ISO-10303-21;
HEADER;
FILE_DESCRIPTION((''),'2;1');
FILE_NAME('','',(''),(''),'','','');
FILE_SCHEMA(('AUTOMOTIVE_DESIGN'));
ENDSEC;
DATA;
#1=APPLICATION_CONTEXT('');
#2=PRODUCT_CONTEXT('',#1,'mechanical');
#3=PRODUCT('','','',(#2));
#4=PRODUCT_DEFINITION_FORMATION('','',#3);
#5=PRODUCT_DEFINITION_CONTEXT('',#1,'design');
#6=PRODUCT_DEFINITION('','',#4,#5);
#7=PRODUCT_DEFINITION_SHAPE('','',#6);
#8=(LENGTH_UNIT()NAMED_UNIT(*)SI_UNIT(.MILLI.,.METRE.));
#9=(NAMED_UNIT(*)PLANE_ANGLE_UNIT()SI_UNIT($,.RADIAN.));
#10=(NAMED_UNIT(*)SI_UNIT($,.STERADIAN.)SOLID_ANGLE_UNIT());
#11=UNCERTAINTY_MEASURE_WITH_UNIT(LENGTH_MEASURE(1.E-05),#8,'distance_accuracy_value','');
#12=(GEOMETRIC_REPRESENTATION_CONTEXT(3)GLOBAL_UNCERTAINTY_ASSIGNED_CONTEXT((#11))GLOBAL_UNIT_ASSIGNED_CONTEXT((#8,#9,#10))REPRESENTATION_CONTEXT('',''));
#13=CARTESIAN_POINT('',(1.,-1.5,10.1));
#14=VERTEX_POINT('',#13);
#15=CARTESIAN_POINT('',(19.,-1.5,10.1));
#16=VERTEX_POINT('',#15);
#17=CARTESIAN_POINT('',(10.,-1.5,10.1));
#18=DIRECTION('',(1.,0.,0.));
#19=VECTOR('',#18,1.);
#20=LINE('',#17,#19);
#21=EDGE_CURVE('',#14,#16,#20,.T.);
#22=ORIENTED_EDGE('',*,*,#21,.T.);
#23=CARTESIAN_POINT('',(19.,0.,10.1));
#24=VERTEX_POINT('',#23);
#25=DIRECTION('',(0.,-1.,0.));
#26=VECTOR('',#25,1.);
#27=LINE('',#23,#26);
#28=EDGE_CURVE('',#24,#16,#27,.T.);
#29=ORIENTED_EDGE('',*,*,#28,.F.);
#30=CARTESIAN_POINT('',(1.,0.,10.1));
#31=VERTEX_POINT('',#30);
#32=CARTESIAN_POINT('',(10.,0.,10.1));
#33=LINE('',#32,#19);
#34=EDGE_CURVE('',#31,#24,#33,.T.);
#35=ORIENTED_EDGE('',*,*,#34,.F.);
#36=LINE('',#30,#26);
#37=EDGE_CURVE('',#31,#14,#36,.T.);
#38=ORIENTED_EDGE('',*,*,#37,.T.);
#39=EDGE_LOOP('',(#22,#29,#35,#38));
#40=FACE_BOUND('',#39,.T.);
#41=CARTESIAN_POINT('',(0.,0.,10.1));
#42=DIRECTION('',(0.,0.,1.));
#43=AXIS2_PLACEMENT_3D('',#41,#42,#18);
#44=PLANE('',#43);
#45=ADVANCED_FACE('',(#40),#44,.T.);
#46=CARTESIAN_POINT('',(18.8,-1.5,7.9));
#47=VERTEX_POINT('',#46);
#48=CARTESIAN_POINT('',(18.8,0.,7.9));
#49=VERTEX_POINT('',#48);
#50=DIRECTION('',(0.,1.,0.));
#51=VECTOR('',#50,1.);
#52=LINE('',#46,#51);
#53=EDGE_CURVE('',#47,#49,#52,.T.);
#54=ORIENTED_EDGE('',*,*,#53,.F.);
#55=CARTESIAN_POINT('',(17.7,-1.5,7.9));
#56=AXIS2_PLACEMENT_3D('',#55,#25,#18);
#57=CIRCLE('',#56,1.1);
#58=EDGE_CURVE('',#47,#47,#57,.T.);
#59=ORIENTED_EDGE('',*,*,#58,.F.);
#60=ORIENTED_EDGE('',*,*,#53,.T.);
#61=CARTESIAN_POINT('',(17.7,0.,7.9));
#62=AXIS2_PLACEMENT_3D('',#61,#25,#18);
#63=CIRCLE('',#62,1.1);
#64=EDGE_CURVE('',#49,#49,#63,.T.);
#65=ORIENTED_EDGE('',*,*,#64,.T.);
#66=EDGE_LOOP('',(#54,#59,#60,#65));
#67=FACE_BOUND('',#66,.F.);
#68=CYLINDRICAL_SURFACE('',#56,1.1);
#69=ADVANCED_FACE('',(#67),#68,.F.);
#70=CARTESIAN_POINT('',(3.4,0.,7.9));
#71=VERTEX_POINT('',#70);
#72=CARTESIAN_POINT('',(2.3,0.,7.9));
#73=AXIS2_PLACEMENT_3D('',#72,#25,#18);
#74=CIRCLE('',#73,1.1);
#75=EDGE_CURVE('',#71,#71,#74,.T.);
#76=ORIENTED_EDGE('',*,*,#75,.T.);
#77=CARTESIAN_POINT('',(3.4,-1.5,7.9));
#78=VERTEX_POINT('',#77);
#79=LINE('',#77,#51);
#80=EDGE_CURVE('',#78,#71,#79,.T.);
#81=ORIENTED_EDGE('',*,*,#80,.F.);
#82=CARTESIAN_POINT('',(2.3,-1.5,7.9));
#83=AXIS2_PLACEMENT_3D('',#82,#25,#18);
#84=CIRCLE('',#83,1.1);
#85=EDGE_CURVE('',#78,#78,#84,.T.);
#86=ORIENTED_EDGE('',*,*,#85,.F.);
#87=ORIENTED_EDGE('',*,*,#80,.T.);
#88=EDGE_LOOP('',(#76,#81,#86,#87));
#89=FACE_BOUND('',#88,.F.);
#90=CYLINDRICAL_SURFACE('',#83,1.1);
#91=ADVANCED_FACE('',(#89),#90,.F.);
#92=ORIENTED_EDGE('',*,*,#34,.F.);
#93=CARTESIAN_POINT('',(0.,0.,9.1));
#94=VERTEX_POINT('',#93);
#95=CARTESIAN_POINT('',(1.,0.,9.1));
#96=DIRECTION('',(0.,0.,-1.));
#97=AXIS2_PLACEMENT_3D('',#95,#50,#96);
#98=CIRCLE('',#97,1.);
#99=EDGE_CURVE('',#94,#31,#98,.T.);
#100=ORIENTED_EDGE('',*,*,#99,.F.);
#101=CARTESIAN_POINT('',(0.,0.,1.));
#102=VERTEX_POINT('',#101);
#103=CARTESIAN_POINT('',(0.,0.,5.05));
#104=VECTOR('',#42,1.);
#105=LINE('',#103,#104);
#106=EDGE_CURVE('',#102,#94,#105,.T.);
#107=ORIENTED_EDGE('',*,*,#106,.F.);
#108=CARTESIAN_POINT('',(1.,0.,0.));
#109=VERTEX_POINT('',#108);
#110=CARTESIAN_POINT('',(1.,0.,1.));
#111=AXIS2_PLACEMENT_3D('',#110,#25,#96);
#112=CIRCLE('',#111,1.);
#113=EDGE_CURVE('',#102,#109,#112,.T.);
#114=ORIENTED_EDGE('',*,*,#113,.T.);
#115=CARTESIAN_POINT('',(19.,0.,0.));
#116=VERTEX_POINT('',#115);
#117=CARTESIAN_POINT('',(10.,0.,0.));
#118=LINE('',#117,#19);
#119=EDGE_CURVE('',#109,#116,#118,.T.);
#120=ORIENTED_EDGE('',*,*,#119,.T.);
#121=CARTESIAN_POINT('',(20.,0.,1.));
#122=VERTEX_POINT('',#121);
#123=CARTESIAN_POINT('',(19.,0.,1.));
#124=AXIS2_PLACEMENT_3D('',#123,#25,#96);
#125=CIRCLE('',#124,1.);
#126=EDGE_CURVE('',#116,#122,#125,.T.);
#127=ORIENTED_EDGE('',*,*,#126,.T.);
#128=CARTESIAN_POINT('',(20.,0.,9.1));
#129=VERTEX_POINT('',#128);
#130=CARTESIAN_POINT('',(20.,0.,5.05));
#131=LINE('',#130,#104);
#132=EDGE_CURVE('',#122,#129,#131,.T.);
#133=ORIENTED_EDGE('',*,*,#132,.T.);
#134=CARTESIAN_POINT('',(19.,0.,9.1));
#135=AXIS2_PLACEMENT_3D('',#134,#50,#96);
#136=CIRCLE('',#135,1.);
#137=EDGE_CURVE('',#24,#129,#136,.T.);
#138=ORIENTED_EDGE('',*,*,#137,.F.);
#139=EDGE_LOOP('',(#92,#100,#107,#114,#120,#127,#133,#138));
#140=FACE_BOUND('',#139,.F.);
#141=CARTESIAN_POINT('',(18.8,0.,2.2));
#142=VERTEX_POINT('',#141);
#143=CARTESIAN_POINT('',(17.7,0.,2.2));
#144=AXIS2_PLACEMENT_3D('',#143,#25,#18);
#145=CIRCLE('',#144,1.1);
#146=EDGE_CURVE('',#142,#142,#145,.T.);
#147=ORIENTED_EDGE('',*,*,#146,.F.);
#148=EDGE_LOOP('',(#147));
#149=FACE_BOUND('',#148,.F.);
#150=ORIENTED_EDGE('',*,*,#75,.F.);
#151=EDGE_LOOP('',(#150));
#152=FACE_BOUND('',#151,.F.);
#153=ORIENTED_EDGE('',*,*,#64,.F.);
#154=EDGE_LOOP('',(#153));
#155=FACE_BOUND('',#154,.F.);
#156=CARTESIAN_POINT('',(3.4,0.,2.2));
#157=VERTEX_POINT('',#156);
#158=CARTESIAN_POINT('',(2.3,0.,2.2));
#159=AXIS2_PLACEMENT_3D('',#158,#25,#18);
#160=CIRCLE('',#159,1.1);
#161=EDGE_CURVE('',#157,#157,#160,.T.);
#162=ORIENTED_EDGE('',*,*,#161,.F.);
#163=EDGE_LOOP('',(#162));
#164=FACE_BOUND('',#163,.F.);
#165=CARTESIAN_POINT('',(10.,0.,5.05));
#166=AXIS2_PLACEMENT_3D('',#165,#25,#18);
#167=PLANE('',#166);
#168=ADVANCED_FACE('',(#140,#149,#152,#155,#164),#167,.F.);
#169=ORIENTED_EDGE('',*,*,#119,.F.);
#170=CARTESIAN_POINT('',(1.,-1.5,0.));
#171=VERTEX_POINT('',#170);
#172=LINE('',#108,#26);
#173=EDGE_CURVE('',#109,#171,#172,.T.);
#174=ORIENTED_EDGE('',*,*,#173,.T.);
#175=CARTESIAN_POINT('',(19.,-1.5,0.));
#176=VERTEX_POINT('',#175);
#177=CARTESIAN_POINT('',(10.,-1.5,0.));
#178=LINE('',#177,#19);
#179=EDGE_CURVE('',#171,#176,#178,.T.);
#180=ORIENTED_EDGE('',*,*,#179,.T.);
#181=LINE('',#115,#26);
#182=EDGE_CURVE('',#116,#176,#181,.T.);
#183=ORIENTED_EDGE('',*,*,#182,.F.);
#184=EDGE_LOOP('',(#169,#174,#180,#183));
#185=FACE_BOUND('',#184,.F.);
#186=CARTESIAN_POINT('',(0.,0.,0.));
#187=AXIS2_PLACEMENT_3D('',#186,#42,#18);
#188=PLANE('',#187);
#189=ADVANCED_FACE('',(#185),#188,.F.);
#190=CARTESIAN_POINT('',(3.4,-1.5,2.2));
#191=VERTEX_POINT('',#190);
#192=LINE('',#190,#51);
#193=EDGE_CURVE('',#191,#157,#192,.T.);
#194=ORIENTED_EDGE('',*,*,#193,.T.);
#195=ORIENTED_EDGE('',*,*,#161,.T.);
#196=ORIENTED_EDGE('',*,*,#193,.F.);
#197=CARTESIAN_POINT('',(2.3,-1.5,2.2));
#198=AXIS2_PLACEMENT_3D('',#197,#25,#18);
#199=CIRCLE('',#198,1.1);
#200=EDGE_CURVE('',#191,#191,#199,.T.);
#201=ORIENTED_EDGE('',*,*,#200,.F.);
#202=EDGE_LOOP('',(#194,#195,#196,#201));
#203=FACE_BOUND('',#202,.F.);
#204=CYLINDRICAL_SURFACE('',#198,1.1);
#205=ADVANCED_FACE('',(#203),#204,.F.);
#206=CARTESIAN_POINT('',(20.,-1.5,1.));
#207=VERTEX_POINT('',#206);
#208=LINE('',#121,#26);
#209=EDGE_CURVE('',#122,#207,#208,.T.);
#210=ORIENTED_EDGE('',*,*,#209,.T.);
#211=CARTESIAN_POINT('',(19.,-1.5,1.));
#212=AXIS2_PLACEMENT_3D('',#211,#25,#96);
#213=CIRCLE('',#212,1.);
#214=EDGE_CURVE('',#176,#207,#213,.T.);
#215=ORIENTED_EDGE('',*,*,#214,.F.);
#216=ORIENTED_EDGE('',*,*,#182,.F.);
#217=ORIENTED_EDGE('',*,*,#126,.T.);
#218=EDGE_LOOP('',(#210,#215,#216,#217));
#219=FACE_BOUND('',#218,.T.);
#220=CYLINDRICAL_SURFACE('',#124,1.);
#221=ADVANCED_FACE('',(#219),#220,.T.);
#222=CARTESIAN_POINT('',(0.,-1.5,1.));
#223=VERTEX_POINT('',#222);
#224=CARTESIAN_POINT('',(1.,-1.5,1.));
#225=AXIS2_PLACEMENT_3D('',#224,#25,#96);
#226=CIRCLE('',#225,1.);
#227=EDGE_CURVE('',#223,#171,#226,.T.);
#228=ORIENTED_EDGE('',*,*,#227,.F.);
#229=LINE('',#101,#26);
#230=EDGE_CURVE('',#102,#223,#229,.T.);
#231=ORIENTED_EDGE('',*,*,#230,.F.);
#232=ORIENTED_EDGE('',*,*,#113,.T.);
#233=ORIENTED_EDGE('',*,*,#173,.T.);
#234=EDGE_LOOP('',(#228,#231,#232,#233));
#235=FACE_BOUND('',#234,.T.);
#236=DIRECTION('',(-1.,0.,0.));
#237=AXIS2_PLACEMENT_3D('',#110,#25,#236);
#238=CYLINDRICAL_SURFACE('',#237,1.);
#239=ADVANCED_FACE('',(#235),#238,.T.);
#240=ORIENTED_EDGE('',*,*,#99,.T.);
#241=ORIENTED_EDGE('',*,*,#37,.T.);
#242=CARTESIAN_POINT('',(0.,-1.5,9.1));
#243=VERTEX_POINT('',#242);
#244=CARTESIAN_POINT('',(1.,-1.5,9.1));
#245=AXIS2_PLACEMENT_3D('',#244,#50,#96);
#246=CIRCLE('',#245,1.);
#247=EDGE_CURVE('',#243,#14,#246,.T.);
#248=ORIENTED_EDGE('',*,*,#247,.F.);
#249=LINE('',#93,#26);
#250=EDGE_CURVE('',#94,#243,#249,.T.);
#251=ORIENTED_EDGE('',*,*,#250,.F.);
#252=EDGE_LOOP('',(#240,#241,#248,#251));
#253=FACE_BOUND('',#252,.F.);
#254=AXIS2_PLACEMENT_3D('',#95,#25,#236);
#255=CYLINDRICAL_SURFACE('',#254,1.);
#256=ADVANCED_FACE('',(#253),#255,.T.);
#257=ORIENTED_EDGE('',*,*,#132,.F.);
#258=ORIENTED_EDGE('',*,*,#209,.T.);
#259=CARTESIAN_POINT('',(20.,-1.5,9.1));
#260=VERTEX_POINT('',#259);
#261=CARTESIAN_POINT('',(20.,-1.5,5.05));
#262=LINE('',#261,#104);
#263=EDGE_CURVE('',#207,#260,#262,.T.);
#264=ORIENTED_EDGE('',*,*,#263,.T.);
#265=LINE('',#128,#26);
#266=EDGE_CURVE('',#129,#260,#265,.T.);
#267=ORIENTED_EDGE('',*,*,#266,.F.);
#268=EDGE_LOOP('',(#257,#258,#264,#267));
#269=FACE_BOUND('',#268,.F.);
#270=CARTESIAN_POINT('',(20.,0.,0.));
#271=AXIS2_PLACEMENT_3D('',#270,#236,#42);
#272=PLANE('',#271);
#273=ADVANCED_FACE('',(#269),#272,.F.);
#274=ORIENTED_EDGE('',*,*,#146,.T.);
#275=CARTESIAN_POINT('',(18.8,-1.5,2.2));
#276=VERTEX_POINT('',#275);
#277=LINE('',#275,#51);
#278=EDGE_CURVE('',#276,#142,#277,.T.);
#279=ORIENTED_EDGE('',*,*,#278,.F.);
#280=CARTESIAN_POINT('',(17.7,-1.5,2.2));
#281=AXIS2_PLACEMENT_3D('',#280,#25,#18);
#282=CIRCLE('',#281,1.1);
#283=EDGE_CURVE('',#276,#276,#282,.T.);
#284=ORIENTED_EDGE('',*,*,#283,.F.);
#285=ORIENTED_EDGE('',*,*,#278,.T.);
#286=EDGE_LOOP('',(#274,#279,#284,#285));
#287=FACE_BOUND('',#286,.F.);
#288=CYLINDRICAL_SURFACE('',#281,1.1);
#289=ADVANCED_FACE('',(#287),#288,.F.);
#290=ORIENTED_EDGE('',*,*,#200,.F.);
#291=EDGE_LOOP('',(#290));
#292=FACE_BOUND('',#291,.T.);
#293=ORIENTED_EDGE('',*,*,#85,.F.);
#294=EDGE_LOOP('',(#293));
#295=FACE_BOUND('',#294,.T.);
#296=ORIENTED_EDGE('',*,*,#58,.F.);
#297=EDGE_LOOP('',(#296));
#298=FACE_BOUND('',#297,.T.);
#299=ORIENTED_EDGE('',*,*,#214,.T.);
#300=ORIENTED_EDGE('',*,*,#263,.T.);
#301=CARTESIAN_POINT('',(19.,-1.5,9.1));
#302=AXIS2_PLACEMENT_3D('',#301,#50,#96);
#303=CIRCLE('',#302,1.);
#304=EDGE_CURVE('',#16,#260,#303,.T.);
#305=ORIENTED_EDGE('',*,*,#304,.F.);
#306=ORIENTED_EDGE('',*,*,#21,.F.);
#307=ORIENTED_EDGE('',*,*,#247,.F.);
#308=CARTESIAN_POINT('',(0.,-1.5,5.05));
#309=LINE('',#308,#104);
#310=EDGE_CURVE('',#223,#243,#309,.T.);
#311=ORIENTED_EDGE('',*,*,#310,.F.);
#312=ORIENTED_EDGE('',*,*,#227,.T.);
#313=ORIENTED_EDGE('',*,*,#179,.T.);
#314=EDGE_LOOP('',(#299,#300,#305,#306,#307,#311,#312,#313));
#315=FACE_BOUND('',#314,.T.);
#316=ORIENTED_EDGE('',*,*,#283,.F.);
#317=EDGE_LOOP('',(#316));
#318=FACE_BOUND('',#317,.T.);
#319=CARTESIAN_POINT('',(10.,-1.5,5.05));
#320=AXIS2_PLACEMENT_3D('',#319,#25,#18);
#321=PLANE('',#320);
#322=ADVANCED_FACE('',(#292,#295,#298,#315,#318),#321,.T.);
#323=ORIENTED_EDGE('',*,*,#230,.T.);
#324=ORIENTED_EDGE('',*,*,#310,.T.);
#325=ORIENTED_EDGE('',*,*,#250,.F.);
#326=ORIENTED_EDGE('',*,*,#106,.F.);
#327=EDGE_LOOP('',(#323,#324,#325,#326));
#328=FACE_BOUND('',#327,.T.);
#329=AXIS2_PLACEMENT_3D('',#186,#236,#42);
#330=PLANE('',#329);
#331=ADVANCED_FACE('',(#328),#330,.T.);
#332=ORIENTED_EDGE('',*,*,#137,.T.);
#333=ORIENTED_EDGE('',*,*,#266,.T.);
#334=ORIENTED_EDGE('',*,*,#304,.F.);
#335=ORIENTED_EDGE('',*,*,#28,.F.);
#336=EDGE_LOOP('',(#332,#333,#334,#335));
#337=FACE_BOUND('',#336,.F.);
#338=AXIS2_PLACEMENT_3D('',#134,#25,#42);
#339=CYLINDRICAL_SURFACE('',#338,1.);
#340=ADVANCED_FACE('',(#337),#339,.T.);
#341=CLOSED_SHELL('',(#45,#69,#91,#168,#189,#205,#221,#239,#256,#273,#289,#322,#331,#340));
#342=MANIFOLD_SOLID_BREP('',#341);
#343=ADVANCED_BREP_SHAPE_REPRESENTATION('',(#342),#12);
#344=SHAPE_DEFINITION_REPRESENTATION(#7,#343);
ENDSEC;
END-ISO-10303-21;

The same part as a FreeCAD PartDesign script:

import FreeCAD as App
import Part
import Sketcher
from FreeCAD import Vector


def edges_at(feature, points):
    """Names of the edges that pass closest to the given points."""
    edges = feature.Shape.Edges
    near = lambda p: min(range(len(edges)), key=lambda i: edges[i].distToShape(Part.Vertex(*p))[0])
    return sorted({f"Edge{near(p) + 1}" for p in points})


def add_polygon(sketch, points):
    """Adds a closed chain of lines whose ends are joined by coincident constraints."""
    first, n = sketch.GeometryCount, len(points)
    for a, b in zip(points, points[1:] + points[:1]):
        sketch.addGeometry(Part.LineSegment(App.Vector(*a, 0), App.Vector(*b, 0)), False)
    for i in range(n):
        sketch.addConstraint(Sketcher.Constraint("Coincident", first + i, 2, first + (i + 1) % n, 1))

doc = App.newDocument("Part")
params = doc.addObject("Spreadsheet::Sheet", "Params")
for row, (alias, value) in enumerate([
    ("sketch1_width", "20 mm"),
    ("sketch1_height", "10.1 mm"),
    ("pad1_length", "1.5 mm"),
    ("sketch2_diameter", "2.2 mm"),
    ("fillet_radius", "1 mm"),
], start=1):
    params.set(f"A{row}", alias)
    params.set(f"B{row}", "=" + value)
    params.setAlias(f"B{row}", alias)

body = doc.addObject("PartDesign::Body", "Body")

# Sketch on XZ plane
sketch1 = doc.addObject("Sketcher::SketchObject", "Sketch")
body.addObject(sketch1)
sketch1.AttachmentSupport = (doc.XZ_Plane, [""])
sketch1.MapMode = "FlatFace"
add_polygon(sketch1, [(0, 10.1), (0, 0), (20, 0), (20, 10.1)])  # lines 0-3
sketch1.addConstraint(Sketcher.Constraint("Vertical", 0))
sketch1.addConstraint(Sketcher.Constraint("Horizontal", 1))
sketch1.addConstraint(Sketcher.Constraint("Vertical", 2))
sketch1.addConstraint(Sketcher.Constraint("Horizontal", 3))
sketch1.addConstraint(Sketcher.Constraint("Coincident", 0, 2, -1, 1))
sketch1.addConstraint(Sketcher.Constraint("DistanceX", 1, 1, 1, 2, 20.0))
sketch1.addConstraint(Sketcher.Constraint("DistanceY", 0, 2, 0, 1, 10.1))
sketch1.setExpression("Constraints[9]", "Params.sketch1_width")
sketch1.setExpression("Constraints[10]", "Params.sketch1_height")
pad1 = doc.addObject("PartDesign::Pad", "Pad")
body.addObject(pad1)
pad1.Profile = sketch1
pad1.setExpression("Length", "Params.pad1_length")

# Sketch on XZ plane
sketch2 = doc.addObject("Sketcher::SketchObject", "Sketch001")
body.addObject(sketch2)
sketch2.AttachmentSupport = (doc.XZ_Plane, [""])
sketch2.MapMode = "FlatFace"
sketch2.AttachmentOffset = App.Placement(Vector(0, 0, 1.5), App.Rotation())
sketch2.addGeometry(Part.Circle(Vector(2.3, 7.9, 0), Vector(0, 0, 1), 1.1), False)
sketch2.addGeometry(Part.Circle(Vector(17.7, 7.9, 0), Vector(0, 0, 1), 1.1), False)
sketch2.addGeometry(Part.Circle(Vector(2.3, 2.2, 0), Vector(0, 0, 1), 1.1), False)
sketch2.addGeometry(Part.Circle(Vector(17.7, 2.2, 0), Vector(0, 0, 1), 1.1), False)
sketch2.addConstraint(Sketcher.Constraint("Equal", 0, 1))
sketch2.addConstraint(Sketcher.Constraint("Equal", 1, 2))
sketch2.addConstraint(Sketcher.Constraint("Equal", 2, 3))
sketch2.addConstraint(Sketcher.Constraint("Horizontal", 0, 3, 1, 3))
sketch2.addConstraint(Sketcher.Constraint("Horizontal", 2, 3, 3, 3))
sketch2.addConstraint(Sketcher.Constraint("Vertical", 0, 3, 2, 3))
sketch2.addConstraint(Sketcher.Constraint("Vertical", 1, 3, 3, 3))
sketch2.addConstraint(Sketcher.Constraint("Diameter", 0, 2.2))
sketch2.addConstraint(Sketcher.Constraint("DistanceX", -1, 1, 0, 3, 2.3))
sketch2.addConstraint(Sketcher.Constraint("DistanceY", -1, 1, 0, 3, 7.9))
sketch2.addConstraint(Sketcher.Constraint("DistanceX", -1, 1, 1, 3, 17.7))
sketch2.addConstraint(Sketcher.Constraint("DistanceY", -1, 1, 2, 3, 2.2))
sketch2.setExpression("Constraints[7]", "Params.sketch2_diameter")
pocket1 = doc.addObject("PartDesign::Pocket", "Pocket")
body.addObject(pocket1)
pocket1.Profile = sketch2
pocket1.Type = "ThroughAll"
doc.recompute()

fillet = doc.addObject("PartDesign::Fillet", "Fillet")
body.addObject(fillet)
fillet.Base = (pocket1, edges_at(pocket1, [
    (20, -0.75, 10.1),
    (20, -0.75, 0),
    (0, -0.75, 10.1),
    (0, -0.75, 0),
]))
fillet.setExpression("Radius", "Params.fillet_radius")

doc.recompute()
